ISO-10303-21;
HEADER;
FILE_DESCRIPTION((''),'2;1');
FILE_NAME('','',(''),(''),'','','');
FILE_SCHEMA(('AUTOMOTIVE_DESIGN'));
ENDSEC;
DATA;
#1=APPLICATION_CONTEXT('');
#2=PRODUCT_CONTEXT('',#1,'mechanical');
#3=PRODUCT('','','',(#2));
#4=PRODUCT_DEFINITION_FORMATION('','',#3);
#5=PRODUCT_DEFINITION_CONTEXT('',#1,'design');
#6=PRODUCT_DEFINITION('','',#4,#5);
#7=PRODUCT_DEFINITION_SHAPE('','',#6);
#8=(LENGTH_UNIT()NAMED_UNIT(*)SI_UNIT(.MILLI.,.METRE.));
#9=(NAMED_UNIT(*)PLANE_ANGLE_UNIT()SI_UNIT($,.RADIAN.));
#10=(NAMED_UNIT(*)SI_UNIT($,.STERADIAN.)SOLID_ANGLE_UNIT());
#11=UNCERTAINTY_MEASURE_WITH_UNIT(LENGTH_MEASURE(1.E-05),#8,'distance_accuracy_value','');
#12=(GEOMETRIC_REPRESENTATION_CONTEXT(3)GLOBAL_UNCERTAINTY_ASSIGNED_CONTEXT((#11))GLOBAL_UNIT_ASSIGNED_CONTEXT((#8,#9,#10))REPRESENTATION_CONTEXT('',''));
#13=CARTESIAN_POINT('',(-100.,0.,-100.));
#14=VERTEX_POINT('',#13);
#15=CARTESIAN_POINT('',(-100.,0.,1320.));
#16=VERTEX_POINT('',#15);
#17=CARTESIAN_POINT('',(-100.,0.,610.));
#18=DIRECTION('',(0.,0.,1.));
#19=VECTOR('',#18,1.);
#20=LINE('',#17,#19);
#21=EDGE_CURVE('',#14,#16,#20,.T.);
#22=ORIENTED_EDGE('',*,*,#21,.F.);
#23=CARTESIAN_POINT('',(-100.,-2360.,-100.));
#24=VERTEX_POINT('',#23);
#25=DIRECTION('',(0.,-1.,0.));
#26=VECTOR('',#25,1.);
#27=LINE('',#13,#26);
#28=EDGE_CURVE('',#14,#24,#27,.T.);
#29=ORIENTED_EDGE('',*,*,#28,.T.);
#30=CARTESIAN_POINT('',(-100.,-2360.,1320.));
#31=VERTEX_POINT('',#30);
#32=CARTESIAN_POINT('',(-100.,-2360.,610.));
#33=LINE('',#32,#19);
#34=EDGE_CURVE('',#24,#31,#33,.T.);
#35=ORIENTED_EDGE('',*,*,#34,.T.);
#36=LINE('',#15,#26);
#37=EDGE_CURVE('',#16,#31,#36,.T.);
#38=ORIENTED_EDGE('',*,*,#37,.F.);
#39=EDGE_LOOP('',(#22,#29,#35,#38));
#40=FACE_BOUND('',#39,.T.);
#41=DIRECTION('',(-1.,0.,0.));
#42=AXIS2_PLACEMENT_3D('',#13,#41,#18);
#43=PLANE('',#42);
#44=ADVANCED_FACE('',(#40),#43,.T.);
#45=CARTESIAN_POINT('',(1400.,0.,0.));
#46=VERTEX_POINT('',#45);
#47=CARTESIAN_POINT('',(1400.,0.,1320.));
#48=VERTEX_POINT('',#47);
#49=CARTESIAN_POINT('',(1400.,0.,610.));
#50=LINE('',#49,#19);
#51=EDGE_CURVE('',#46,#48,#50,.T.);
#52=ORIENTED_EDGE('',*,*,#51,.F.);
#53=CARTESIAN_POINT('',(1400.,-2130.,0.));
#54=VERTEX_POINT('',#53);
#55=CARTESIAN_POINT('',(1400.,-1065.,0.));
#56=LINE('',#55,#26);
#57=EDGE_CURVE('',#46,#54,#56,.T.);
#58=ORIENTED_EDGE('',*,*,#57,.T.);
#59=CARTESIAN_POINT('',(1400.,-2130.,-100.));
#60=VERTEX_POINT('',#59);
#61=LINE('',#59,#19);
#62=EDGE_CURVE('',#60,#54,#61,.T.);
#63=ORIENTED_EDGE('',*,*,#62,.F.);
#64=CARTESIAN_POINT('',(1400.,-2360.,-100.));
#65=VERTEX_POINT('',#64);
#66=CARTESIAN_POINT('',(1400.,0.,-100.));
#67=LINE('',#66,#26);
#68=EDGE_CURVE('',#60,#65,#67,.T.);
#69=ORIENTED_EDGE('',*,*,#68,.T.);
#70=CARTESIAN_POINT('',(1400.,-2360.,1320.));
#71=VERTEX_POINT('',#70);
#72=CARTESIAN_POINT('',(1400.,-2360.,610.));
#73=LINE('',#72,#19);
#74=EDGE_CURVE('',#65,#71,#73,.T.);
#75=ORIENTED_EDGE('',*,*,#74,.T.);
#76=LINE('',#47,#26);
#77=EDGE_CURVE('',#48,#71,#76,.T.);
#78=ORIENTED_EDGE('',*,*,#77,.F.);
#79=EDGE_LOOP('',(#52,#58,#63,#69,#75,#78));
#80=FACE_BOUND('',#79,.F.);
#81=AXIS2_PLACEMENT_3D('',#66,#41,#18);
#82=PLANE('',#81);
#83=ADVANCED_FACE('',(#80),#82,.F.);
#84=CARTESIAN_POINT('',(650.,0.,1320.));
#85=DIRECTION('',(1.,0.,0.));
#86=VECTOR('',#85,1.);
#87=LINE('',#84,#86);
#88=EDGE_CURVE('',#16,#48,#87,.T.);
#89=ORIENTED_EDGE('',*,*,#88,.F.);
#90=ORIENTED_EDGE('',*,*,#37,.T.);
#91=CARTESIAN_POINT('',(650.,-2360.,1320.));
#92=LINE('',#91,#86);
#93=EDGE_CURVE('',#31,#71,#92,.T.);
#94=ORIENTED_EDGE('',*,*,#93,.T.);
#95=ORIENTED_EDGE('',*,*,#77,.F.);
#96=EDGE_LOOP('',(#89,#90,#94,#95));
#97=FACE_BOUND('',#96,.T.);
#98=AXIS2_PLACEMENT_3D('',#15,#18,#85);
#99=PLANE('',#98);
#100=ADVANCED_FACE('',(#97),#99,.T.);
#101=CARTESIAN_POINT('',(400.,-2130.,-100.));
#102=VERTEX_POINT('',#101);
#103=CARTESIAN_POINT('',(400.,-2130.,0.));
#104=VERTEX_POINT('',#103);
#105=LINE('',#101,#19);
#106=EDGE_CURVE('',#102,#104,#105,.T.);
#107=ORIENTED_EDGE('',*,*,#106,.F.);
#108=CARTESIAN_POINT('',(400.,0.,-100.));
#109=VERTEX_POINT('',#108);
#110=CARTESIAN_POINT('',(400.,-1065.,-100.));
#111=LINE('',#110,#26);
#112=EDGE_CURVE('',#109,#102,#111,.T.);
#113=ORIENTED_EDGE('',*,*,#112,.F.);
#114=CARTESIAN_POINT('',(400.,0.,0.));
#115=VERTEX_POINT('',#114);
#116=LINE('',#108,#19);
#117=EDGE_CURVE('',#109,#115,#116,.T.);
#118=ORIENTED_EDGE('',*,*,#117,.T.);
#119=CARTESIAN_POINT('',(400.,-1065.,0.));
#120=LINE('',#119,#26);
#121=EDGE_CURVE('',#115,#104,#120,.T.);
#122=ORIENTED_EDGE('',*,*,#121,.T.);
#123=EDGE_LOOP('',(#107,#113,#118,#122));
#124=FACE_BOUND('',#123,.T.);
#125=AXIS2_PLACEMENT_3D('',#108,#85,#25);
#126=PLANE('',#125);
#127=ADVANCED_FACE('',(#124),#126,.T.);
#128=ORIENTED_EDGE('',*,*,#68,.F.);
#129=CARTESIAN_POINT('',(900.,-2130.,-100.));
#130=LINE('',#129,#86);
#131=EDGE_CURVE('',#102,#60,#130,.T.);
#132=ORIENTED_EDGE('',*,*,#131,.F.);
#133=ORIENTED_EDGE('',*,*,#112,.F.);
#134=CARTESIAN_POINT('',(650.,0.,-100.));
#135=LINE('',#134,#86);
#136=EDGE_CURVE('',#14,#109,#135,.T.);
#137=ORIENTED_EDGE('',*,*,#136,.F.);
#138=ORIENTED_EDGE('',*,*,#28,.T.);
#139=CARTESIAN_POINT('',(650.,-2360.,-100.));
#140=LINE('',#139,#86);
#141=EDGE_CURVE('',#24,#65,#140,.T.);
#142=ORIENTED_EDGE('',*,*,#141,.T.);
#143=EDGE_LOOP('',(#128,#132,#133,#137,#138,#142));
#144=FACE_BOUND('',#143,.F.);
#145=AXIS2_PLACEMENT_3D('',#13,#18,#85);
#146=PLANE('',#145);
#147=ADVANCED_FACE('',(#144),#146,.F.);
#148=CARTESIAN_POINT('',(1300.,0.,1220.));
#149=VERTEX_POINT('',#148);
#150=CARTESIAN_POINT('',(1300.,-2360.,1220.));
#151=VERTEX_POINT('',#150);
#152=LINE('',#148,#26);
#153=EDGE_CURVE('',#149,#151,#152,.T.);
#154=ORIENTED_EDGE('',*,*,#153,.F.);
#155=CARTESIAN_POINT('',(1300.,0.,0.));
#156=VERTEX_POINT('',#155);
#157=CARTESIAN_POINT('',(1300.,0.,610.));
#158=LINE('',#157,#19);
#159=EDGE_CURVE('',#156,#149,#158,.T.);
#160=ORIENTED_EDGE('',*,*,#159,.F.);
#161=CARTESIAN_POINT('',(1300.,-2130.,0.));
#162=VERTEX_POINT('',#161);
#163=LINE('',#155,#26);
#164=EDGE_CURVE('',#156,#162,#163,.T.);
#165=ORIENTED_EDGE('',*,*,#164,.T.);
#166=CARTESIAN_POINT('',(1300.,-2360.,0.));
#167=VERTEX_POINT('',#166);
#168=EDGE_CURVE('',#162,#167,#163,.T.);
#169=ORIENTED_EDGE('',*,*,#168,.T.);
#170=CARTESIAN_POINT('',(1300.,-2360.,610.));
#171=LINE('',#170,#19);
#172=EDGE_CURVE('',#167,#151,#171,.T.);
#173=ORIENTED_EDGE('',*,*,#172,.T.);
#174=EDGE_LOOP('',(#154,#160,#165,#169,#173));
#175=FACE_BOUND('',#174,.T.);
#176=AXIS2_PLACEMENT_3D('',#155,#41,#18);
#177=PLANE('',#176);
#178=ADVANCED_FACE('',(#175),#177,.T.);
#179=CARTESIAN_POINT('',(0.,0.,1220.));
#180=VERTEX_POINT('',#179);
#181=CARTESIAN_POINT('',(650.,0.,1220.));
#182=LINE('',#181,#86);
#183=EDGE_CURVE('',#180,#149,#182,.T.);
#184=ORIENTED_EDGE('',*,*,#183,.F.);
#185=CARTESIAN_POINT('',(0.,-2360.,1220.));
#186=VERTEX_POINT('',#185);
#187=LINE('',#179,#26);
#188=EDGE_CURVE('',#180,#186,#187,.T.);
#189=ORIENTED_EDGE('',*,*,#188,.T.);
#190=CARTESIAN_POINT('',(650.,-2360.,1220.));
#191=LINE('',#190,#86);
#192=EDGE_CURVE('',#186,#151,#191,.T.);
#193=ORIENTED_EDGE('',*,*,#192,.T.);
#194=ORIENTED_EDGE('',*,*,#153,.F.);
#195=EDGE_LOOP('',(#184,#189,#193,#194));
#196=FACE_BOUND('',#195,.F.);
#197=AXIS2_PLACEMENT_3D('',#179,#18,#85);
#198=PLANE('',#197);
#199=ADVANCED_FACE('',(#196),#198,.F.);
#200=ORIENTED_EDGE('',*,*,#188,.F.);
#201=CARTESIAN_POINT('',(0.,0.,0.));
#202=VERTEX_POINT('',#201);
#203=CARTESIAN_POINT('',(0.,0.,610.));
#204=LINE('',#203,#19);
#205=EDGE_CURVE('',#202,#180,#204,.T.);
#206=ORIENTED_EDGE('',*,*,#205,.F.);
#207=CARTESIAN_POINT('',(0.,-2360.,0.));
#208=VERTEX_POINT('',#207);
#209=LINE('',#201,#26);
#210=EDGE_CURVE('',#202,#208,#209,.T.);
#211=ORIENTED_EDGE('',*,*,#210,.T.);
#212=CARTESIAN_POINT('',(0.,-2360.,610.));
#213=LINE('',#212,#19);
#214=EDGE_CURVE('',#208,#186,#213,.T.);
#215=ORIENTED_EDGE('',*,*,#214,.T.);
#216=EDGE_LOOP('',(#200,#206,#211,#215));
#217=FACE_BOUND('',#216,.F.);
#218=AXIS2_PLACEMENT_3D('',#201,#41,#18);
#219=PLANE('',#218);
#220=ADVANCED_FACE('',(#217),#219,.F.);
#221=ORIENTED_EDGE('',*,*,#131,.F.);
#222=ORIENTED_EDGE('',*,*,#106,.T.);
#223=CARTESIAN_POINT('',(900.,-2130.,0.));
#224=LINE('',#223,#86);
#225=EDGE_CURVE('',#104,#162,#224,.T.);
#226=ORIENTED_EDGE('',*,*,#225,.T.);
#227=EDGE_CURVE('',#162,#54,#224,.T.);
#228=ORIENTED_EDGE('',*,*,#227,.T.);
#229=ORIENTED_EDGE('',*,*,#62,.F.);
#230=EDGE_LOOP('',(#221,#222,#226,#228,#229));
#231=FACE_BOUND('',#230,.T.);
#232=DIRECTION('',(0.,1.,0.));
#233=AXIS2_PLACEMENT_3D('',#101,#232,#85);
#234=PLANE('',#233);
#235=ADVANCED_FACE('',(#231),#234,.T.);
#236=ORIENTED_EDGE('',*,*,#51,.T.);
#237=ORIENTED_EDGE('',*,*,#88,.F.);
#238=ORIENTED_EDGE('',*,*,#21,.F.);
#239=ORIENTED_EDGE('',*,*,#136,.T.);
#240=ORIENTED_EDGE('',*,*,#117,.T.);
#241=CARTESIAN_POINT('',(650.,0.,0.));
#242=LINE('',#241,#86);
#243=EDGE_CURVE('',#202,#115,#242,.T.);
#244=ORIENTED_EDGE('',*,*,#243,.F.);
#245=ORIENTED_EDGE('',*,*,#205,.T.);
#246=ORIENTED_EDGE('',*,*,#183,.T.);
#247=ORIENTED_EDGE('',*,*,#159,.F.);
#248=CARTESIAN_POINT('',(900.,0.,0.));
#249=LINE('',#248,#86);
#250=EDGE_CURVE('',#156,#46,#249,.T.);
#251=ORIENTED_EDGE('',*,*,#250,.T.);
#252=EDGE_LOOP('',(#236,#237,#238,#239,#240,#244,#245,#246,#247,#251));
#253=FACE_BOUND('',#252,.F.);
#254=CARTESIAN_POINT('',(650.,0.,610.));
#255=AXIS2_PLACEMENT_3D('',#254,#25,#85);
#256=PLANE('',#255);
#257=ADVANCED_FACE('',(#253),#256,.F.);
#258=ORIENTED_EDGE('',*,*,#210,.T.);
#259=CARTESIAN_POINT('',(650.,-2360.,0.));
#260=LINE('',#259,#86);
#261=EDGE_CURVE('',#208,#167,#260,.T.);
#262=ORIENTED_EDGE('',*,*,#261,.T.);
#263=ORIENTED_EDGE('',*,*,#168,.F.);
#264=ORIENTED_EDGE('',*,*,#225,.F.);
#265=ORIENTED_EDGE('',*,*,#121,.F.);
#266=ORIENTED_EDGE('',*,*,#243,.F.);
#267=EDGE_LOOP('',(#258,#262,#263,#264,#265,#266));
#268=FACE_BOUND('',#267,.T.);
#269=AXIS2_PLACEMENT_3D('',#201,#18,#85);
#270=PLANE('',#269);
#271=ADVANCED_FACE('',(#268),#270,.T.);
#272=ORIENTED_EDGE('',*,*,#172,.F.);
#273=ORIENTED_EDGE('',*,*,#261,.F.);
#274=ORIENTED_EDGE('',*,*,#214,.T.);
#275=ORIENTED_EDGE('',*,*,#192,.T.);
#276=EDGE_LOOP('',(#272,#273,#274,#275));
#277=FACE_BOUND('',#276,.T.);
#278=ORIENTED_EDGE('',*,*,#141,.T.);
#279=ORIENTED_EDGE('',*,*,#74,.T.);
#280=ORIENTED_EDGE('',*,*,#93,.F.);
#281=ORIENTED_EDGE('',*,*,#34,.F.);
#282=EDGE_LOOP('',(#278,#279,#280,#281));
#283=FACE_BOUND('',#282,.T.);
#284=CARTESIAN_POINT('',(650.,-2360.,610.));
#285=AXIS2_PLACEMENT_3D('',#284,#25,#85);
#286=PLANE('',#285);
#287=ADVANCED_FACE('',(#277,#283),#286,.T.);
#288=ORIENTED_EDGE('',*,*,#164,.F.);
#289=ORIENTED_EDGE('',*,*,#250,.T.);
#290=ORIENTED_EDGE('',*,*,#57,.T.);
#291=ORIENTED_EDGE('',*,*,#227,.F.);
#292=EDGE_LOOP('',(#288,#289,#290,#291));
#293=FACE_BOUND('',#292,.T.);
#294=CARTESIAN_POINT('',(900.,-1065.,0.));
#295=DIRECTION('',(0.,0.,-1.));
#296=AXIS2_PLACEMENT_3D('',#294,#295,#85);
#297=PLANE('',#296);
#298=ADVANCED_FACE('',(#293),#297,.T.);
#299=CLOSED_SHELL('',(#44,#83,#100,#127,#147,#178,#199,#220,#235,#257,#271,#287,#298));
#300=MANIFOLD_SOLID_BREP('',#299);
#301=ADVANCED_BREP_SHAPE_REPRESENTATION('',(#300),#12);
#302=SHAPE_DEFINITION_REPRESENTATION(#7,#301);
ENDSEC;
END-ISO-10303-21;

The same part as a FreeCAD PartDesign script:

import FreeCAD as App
import Part
import Sketcher
from FreeCAD import Vector
Q = App.Units.Quantity

doc = App.newDocument("Part")
params = doc.addObject("Spreadsheet::Sheet", "Params")
for row, (alias, value) in enumerate([
    ("sketch1_width", "1500 mm"),
    ("sketch1_width2", "1300 mm"),
    ("sketch1_height", "1420 mm"),
    ("sketch1_height2", "1220 mm"),
    ("pad1_length", "2360 mm"),
    ("sketch2_width", "1000 mm"),
    ("sketch2_height", "2130 mm"),
    ("pocket1_length", "100 mm"),
], start=1):
    params.set(f"A{row}", alias)
    params.set(f"B{row}", "=" + value)
    params.setAlias(f"B{row}", alias)

body = doc.addObject("PartDesign::Body", "Body")

# Sketch on XZ plane
sketch1 = body.newObject("Sketcher::SketchObject", "Sketch")
sketch1.AttachmentSupport = (doc.getObject("XZ_Plane"), [""])
sketch1.MapMode = "FlatFace"
sketch1.addGeometry([
    Part.LineSegment(Vector(-100, 1320, 0), Vector(-100, -100, 0)),  # 0
    Part.LineSegment(Vector(-100, -100, 0), Vector(1400, -100, 0)),  # 1
    Part.LineSegment(Vector(1400, -100, 0), Vector(1400, 1320, 0)),  # 2
    Part.LineSegment(Vector(1400, 1320, 0), Vector(-100, 1320, 0)),  # 3
    Part.LineSegment(Vector(1300, 0, 0), Vector(0, 0, 0)),  # 4
    Part.LineSegment(Vector(0, 0, 0), Vector(0, 1220, 0)),  # 5
    Part.LineSegment(Vector(0, 1220, 0), Vector(1300, 1220, 0)),  # 6
    Part.LineSegment(Vector(1300, 1220, 0), Vector(1300, 0, 0)),  # 7
], False)
sketch1.addConstraint([
    Sketcher.Constraint("Coincident", 0, 2, 1, 1),
    Sketcher.Constraint("Coincident", 1, 2, 2, 1),
    Sketcher.Constraint("Coincident", 2, 2, 3, 1),
    Sketcher.Constraint("Coincident", 3, 2, 0, 1),
    Sketcher.Constraint("Coincident", 4, 2, 5, 1),
    Sketcher.Constraint("Coincident", 5, 2, 6, 1),
    Sketcher.Constraint("Coincident", 6, 2, 7, 1),
    Sketcher.Constraint("Coincident", 7, 2, 4, 1),
    Sketcher.Constraint("Vertical", 0),
    Sketcher.Constraint("Horizontal", 1),
    Sketcher.Constraint("Vertical", 2),
    Sketcher.Constraint("Horizontal", 3),
    Sketcher.Constraint("Horizontal", 4),
    Sketcher.Constraint("Vertical", 5),
    Sketcher.Constraint("Horizontal", 6),
    Sketcher.Constraint("Vertical", 7),
    Sketcher.Constraint("Coincident", 4, 2, -1, 1),
    Sketcher.Constraint("DistanceX", 1, 1, 1, 2, Q("1500 mm")),
    Sketcher.Constraint("DistanceX", 4, 2, 4, 1, Q("1300 mm")),
    Sketcher.Constraint("DistanceY", 0, 2, 0, 1, Q("1420 mm")),
    Sketcher.Constraint("DistanceY", 5, 1, 5, 2, Q("1220 mm")),
    Sketcher.Constraint("DistanceX", 0, 2, -1, 1, Q("100 mm")),
    Sketcher.Constraint("DistanceY", 0, 2, -1, 1, Q("100 mm")),
])
sketch1.setExpression("Constraints[17]", "Params.sketch1_width")
sketch1.setExpression("Constraints[18]", "Params.sketch1_width2")
sketch1.setExpression("Constraints[19]", "Params.sketch1_height")
sketch1.setExpression("Constraints[20]", "Params.sketch1_height2")
pad1 = body.newObject("PartDesign::Pad", "Pad")
pad1.Profile = sketch1
pad1.setExpression("Length", "Params.pad1_length")

# Sketch on XY plane
sketch2 = body.newObject("Sketcher::SketchObject", "Sketch001")
sketch2.AttachmentSupport = (doc.getObject("XY_Plane"), [""])
sketch2.MapMode = "FlatFace"
sketch2.AttachmentOffset = App.Placement(Vector(0, 0, -100), App.Rotation())
sketch2.addGeometry([
    Part.LineSegment(Vector(400, -2130, 0), Vector(400, 0, 0)),
    Part.LineSegment(Vector(400, 0, 0), Vector(1400, 0, 0)),
    Part.LineSegment(Vector(1400, 0, 0), Vector(1400, -2130, 0)),
    Part.LineSegment(Vector(1400, -2130, 0), Vector(400, -2130, 0)),
], False)
sketch2.addConstraint([
    Sketcher.Constraint("Coincident", 0, 2, 1, 1),
    Sketcher.Constraint("Coincident", 1, 2, 2, 1),
    Sketcher.Constraint("Coincident", 2, 2, 3, 1),
    Sketcher.Constraint("Coincident", 3, 2, 0, 1),
    Sketcher.Constraint("Vertical", 0),
    Sketcher.Constraint("Horizontal", 1),
    Sketcher.Constraint("Vertical", 2),
    Sketcher.Constraint("Horizontal", 3),
    Sketcher.Constraint("PointOnObject", 0, 2, -1),
    Sketcher.Constraint("DistanceX", 1, 1, 1, 2, Q("1000 mm")),
    Sketcher.Constraint("DistanceY", 0, 1, 0, 2, Q("2130 mm")),
    Sketcher.Constraint("DistanceX", -1, 1, 0, 2, Q("400 mm")),
])
sketch2.setExpression("Constraints[9]", "Params.sketch2_width")
sketch2.setExpression("Constraints[10]", "Params.sketch2_height")
pocket1 = body.newObject("PartDesign::Pocket", "Pocket")
pocket1.Profile = sketch2
pocket1.setExpression("Length", "Params.pocket1_length")
pocket1.Reversed = True

doc.recompute()
